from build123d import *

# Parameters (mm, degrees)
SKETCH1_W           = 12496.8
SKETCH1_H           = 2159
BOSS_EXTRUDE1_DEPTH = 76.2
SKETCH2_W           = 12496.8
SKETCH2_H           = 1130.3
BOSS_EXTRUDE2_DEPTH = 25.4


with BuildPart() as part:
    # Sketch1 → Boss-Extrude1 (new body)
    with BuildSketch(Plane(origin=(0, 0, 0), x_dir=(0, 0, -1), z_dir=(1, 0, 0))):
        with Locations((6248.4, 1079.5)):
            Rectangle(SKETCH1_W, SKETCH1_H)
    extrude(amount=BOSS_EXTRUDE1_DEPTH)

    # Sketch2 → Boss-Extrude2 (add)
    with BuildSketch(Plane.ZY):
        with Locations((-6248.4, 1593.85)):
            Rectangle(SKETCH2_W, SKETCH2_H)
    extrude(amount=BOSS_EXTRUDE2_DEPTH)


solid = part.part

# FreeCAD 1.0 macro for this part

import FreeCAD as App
import Part
import Sketcher

V = App.Vector
Q = App.Units.Quantity

doc = App.newDocument("Part")
body = doc.addObject("PartDesign::Body", "Body")

# Sketch on YZ plane
sketch1 = doc.addObject("Sketcher::SketchObject", "Sketch")
body.addObject(sketch1)
sketch1.AttachmentSupport = (doc.YZ_Plane, [""])
sketch1.MapMode = "FlatFace"
sketch1.addGeometry([
    Part.LineSegment(V(2159, 0, 0), V(0, 0, 0)),
    Part.LineSegment(V(0, 0, 0), V(0, -12496.8, 0)),
    Part.LineSegment(V(0, -12496.8, 0), V(2159, -12496.8, 0)),
    Part.LineSegment(V(2159, -12496.8, 0), V(2159, 0, 0)),
], False)
sketch1.addConstraint([
    Sketcher.Constraint("Coincident", 0, 2, 1, 1),
    Sketcher.Constraint("Coincident", 1, 2, 2, 1),
    Sketcher.Constraint("Coincident", 2, 2, 3, 1),
    Sketcher.Constraint("Coincident", 3, 2, 0, 1),
    Sketcher.Constraint("Horizontal", 0),
    Sketcher.Constraint("Vertical", 1),
    Sketcher.Constraint("Horizontal", 2),
    Sketcher.Constraint("Vertical", 3),
    Sketcher.Constraint("Coincident", 0, 2, -1, 1),
    Sketcher.Constraint("DistanceX", 0, 2, 0, 1, Q("85 in")),
    Sketcher.Constraint("DistanceY", 1, 2, 1, 1, Q("492 in")),
])
pad1 = doc.addObject("PartDesign::Pad", "Pad")
body.addObject(pad1)
pad1.Profile = sketch1
pad1.Length = Q("3 in")

# Sketch on YZ plane
sketch2 = doc.addObject("Sketcher::SketchObject", "Sketch001")
body.addObject(sketch2)
sketch2.AttachmentSupport = (doc.YZ_Plane, [""])
sketch2.MapMode = "FlatFace"
sketch2.addGeometry([
    Part.LineSegment(V(2159, -12496.8, 0), V(1028.7, -12496.8, 0)),
    Part.LineSegment(V(1028.7, -12496.8, 0), V(1028.7, 0, 0)),
    Part.LineSegment(V(1028.7, 0, 0), V(2159, 0, 0)),
    Part.LineSegment(V(2159, 0, 0), V(2159, -12496.8, 0)),
], False)
sketch2.addConstraint([
    Sketcher.Constraint("Coincident", 0, 2, 1, 1),
    Sketcher.Constraint("Coincident", 1, 2, 2, 1),
    Sketcher.Constraint("Coincident", 2, 2, 3, 1),
    Sketcher.Constraint("Coincident", 3, 2, 0, 1),
    Sketcher.Constraint("Horizontal", 0),
    Sketcher.Constraint("Vertical", 1),
    Sketcher.Constraint("Horizontal", 2),
    Sketcher.Constraint("Vertical", 3),
    Sketcher.Constraint("PointOnObject", 1, 2, -1),
    Sketcher.Constraint("DistanceY", 1, 1, 1, 2, Q("492 in")),
    Sketcher.Constraint("DistanceX", 0, 2, 0, 1, Q("44.5 in")),
    Sketcher.Constraint("DistanceX", -1, 1, 2, 2, Q("85 in")),
])
pad2 = doc.addObject("PartDesign::Pad", "Pad001")
body.addObject(pad2)
pad2.Profile = sketch2
pad2.Length = Q("1 in")
pad2.Reversed = True

doc.recompute()
